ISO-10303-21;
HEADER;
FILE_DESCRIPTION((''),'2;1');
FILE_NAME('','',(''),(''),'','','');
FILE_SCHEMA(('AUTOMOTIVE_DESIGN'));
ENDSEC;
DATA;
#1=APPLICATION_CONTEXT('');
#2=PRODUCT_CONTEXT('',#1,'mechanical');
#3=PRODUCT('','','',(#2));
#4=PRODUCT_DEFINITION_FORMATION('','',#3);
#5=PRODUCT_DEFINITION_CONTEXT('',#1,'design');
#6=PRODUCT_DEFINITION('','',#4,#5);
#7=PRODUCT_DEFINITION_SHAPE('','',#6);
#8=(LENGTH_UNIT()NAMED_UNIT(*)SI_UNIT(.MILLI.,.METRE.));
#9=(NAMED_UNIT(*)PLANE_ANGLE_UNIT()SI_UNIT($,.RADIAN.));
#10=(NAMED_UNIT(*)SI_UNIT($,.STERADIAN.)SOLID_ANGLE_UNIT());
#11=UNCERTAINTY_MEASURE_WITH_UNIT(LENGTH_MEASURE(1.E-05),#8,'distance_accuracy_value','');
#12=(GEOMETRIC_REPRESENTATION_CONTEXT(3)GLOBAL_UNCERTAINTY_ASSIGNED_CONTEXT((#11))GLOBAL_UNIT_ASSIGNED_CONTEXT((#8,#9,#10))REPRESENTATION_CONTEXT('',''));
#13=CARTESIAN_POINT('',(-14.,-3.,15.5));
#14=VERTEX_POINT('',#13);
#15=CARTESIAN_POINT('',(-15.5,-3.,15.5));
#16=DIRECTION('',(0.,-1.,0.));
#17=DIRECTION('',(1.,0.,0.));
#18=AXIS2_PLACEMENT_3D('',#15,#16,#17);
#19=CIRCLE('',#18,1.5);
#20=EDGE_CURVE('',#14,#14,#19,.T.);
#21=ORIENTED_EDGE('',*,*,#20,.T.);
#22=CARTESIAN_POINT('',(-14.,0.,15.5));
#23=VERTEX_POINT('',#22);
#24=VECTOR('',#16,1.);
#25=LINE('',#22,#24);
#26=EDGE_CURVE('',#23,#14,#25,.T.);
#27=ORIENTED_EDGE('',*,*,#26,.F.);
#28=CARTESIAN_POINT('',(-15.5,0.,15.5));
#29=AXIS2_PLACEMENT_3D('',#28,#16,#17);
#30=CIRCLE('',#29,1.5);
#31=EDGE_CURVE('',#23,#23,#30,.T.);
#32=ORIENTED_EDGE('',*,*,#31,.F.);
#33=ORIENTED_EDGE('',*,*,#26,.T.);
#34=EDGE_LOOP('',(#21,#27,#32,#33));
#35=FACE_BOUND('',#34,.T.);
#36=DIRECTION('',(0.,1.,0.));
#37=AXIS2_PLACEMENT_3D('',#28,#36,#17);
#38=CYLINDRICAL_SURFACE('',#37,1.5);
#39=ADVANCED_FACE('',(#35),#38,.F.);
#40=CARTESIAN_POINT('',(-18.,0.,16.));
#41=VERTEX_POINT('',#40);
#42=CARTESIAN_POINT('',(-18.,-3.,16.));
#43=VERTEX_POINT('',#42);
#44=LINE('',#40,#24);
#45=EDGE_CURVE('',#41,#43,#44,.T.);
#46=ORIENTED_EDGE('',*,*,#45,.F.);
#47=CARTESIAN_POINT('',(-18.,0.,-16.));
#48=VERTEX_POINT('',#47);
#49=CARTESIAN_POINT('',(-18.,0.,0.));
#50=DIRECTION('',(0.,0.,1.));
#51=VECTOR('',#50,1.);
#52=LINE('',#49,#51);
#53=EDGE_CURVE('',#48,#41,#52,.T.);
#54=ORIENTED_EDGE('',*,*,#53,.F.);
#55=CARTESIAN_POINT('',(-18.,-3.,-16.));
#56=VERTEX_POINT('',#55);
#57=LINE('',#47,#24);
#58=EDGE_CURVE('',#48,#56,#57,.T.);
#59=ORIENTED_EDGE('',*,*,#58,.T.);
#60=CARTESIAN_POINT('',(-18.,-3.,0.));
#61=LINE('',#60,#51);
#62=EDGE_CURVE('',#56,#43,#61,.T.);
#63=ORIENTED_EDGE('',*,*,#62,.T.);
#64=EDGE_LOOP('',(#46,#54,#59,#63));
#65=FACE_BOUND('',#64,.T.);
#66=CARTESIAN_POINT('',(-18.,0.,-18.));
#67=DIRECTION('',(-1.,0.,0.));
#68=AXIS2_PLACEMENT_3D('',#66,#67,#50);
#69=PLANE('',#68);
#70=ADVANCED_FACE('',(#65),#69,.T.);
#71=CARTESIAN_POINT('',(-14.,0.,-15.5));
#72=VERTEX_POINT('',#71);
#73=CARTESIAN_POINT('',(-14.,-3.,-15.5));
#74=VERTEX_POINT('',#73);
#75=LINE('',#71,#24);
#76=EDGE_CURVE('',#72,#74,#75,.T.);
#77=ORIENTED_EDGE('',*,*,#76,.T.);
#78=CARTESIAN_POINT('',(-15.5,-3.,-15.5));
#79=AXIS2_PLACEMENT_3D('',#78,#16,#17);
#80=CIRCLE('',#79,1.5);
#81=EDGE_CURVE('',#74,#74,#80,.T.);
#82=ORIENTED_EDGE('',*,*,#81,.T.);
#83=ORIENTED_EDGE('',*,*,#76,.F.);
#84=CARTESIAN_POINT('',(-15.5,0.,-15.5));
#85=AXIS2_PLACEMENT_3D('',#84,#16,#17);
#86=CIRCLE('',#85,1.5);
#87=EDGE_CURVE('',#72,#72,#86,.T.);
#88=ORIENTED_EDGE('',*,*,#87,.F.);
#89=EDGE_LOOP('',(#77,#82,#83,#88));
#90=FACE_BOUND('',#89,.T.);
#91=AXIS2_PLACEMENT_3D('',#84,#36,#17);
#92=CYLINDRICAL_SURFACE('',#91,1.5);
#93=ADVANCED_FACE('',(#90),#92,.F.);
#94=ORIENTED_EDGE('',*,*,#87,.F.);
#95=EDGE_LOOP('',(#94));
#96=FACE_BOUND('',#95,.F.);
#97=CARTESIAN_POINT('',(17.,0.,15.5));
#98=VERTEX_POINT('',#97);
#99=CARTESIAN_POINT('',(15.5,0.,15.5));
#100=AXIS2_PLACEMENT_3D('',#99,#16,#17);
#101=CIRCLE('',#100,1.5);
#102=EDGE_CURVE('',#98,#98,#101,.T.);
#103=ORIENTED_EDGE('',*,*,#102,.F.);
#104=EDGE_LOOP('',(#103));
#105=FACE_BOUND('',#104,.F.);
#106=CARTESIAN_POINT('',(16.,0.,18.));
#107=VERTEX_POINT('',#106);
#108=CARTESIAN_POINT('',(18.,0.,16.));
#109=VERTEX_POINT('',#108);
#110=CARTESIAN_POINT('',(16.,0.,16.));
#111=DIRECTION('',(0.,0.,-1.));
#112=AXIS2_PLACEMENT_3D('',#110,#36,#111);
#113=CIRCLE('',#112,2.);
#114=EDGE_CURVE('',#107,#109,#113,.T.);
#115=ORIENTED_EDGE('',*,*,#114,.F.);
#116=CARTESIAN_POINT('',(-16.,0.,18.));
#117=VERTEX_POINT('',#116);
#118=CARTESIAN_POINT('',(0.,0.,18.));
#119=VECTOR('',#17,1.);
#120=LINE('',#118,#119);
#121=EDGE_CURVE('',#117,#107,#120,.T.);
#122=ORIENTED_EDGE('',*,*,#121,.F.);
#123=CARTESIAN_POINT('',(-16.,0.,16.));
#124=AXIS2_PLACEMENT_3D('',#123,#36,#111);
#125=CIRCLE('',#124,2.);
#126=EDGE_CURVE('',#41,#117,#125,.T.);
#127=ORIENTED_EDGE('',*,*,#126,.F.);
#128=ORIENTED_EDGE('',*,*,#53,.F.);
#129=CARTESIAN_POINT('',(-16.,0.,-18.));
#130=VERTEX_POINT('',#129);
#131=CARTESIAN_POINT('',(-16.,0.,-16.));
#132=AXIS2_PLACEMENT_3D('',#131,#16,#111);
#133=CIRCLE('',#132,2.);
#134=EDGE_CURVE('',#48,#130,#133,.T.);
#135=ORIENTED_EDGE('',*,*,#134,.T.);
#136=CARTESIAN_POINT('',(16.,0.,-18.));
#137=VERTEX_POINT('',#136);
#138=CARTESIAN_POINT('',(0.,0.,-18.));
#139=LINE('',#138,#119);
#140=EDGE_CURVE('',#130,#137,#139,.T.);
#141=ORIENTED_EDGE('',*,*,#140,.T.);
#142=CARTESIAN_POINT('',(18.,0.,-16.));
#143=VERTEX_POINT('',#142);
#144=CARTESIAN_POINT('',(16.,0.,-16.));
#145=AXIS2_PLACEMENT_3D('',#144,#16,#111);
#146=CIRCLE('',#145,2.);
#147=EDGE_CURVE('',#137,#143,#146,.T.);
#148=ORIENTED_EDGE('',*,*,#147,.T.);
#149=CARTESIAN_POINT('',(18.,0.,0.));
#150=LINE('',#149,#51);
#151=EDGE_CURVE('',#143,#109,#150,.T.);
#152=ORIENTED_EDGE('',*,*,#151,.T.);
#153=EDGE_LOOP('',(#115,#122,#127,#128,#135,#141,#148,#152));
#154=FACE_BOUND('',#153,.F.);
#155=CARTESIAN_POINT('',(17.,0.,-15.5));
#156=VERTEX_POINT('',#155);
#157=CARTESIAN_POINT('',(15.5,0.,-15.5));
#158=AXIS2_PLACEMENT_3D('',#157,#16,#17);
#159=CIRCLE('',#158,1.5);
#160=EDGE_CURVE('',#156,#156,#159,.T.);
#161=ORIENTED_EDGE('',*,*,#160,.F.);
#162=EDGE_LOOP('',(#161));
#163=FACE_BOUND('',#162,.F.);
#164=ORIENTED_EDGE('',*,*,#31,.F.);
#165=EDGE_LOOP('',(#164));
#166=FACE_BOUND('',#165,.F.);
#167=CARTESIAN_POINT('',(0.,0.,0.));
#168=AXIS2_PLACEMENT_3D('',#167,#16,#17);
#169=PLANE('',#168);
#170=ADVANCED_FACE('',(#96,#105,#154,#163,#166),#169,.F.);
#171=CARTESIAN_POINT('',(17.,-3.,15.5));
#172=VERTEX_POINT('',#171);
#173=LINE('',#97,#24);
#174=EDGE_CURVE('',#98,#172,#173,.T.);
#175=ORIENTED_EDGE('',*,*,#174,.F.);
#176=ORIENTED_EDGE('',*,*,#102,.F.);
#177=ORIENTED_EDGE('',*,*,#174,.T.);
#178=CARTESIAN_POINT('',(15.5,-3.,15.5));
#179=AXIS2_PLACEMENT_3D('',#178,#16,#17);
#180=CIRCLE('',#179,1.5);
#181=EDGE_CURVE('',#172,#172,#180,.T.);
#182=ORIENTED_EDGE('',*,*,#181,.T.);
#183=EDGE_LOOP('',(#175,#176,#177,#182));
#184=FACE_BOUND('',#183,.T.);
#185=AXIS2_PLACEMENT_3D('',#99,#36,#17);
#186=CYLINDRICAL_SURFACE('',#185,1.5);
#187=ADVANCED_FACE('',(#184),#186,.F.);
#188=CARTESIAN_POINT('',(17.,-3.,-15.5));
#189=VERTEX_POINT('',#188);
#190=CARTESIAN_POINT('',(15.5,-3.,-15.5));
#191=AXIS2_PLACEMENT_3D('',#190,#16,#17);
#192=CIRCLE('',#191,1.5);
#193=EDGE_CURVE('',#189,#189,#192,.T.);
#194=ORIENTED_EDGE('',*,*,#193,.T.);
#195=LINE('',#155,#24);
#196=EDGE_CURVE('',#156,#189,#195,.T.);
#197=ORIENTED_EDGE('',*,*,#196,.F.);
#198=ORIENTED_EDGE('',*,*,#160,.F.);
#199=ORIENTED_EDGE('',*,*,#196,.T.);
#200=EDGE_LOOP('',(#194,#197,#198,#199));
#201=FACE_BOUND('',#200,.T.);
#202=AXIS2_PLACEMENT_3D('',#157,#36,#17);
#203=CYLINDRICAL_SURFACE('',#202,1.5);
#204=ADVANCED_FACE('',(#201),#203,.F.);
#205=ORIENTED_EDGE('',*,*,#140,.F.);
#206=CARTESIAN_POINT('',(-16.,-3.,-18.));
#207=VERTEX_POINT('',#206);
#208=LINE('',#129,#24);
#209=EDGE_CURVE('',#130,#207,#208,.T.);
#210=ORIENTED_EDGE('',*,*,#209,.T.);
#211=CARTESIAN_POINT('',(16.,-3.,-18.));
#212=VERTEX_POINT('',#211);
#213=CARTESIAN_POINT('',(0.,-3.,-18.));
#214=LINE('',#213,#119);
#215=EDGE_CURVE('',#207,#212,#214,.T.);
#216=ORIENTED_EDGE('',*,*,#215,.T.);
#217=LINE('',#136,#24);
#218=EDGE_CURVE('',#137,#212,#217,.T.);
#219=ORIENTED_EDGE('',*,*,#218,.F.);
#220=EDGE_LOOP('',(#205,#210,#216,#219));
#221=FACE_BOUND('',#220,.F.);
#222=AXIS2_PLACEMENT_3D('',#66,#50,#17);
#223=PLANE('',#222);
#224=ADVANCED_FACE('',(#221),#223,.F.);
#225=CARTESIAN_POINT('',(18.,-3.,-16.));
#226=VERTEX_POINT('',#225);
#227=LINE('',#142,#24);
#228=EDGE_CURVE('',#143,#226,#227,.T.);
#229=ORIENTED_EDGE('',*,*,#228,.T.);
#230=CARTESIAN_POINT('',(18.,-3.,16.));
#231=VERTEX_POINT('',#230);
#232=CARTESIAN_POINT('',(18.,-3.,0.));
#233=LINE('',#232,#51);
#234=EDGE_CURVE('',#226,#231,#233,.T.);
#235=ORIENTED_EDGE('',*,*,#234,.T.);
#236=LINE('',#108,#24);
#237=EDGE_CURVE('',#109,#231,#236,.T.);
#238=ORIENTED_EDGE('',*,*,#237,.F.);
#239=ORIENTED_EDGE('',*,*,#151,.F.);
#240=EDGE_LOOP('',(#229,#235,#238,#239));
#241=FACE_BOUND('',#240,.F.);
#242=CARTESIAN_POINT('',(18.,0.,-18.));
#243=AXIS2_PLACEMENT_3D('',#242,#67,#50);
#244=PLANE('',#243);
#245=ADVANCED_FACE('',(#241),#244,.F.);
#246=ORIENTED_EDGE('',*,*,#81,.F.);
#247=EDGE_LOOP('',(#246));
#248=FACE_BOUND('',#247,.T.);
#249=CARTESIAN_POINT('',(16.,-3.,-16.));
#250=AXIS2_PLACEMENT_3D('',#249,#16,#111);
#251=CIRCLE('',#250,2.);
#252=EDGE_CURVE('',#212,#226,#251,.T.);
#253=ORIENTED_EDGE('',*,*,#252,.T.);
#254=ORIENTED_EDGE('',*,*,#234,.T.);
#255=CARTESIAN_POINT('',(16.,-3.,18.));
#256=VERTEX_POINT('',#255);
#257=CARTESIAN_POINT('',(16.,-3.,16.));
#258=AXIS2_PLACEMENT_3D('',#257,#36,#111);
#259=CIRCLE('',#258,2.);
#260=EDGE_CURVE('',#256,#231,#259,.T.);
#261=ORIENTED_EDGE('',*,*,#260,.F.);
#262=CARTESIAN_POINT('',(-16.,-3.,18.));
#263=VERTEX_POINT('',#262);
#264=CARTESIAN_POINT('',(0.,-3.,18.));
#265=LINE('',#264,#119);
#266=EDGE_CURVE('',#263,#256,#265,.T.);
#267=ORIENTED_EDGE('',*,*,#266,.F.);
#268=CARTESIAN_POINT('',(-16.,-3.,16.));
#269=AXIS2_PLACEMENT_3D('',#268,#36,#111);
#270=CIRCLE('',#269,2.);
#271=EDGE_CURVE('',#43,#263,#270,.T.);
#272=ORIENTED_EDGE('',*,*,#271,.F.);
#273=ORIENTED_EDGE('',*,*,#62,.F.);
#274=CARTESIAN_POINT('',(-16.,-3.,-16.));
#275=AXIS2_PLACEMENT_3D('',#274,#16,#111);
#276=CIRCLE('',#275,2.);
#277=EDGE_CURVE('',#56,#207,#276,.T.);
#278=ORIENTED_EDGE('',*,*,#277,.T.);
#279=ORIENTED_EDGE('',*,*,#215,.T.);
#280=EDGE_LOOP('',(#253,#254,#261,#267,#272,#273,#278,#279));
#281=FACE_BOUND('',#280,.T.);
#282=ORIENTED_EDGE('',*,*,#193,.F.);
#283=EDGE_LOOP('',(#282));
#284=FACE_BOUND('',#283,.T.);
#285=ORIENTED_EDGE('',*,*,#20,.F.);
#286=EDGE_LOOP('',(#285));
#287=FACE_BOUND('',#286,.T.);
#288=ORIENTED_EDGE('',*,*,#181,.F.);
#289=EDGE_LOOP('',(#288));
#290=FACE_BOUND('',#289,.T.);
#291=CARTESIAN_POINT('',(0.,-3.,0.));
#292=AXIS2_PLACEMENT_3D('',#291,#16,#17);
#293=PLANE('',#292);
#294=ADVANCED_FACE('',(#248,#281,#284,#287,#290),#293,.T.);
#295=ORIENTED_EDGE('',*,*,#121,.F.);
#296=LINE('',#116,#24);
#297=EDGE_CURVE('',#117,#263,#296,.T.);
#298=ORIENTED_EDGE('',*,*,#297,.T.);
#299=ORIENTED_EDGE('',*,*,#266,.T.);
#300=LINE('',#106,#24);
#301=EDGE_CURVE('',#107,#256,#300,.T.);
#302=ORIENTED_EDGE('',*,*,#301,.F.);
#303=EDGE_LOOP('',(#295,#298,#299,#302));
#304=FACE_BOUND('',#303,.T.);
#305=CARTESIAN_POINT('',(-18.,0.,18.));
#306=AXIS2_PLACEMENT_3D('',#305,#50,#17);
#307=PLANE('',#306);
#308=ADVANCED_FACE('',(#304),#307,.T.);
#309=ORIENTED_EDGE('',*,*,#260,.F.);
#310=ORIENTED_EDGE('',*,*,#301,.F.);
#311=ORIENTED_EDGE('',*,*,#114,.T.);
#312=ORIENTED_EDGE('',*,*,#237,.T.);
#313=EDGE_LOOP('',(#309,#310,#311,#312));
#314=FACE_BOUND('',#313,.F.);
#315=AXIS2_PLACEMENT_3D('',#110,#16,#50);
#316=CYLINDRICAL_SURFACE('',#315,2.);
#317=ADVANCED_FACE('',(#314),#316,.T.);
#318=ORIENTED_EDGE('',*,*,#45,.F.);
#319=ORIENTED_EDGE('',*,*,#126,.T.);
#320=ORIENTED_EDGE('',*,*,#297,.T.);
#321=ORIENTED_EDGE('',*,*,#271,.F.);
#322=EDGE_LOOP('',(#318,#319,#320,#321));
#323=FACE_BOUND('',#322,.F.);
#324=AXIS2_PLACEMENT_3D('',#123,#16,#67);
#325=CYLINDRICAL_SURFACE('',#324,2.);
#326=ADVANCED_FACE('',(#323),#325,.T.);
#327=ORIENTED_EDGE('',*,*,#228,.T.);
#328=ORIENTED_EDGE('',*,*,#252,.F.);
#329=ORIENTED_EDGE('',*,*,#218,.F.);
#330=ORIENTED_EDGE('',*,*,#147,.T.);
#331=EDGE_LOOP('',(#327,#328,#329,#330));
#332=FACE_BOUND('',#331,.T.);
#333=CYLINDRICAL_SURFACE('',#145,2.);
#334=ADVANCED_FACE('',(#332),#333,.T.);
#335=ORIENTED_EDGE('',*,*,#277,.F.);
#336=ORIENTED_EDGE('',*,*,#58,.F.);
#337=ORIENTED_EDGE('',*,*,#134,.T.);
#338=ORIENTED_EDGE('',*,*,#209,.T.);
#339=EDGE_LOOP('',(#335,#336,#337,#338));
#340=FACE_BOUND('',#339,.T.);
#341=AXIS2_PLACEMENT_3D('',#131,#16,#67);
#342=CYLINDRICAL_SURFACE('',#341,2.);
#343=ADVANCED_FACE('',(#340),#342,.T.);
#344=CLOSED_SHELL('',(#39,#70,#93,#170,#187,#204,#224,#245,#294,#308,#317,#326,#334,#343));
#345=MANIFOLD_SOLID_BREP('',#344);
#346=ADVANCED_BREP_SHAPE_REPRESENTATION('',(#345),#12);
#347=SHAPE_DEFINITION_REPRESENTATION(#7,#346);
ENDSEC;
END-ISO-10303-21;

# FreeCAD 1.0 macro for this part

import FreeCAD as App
import Part
import Sketcher
Q = App.Units.Quantity


def edges_at(feature, points):
    """Names of the edges that pass closest to the given points."""
    edges = feature.Shape.Edges
    near = lambda p: min(range(len(edges)), key=lambda i: edges[i].distToShape(Part.Vertex(*p))[0])
    return sorted({f"Edge{near(p) + 1}" for p in points})


def add_polygon(sketch, points):
    """Adds a closed chain of lines whose ends are joined by coincident constraints."""
    first, n = sketch.GeometryCount, len(points)
    for a, b in zip(points, points[1:] + points[:1]):
        sketch.addGeometry(Part.LineSegment(App.Vector(*a, 0), App.Vector(*b, 0)), False)
    for i in range(n):
        sketch.addConstraint(Sketcher.Constraint("Coincident", first + i, 2, first + (i + 1) % n, 1))

doc = App.newDocument("Part")
body = doc.addObject("PartDesign::Body", "Body")

sketch1 = body.newObject("Sketcher::SketchObject", "Sketch")
sketch1.AttachmentSupport = (doc.getObject("XZ_Plane"), [""])
sketch1.MapMode = "FlatFace"
add_polygon(sketch1, [(-18, 18), (-18, -18), (18, -18), (18, 18)])
sketch1.addGeometry(Part.Circle(App.Vector(-15.5, -15.5, 0), App.Vector(0, 0, 1), 1.5), False)
sketch1.addGeometry(Part.Circle(App.Vector(15.5, -15.5, 0), App.Vector(0, 0, 1), 1.5), False)
sketch1.addGeometry(Part.Circle(App.Vector(-15.5, 15.5, 0), App.Vector(0, 0, 1), 1.5), False)
sketch1.addGeometry(Part.Circle(App.Vector(15.5, 15.5, 0), App.Vector(0, 0, 1), 1.5), False)
sketch1.addConstraint(Sketcher.Constraint("Vertical", 0))
sketch1.addConstraint(Sketcher.Constraint("Horizontal", 1))
sketch1.addConstraint(Sketcher.Constraint("Vertical", 2))
sketch1.addConstraint(Sketcher.Constraint("Horizontal", 3))
sketch1.addConstraint(Sketcher.Constraint("Equal", 4, 5))
sketch1.addConstraint(Sketcher.Constraint("Equal", 5, 6))
sketch1.addConstraint(Sketcher.Constraint("Equal", 6, 7))
sketch1.addConstraint(Sketcher.Constraint("Symmetric", 5, 3, 6, 3, -1, 1))
sketch1.addConstraint(Sketcher.Constraint("Symmetric", 4, 3, 7, 3, -1, 1))
sketch1.addConstraint(Sketcher.Constraint("Symmetric", 0, 2, 2, 2, -1, 1))
sketch1.addConstraint(Sketcher.Constraint("Symmetric", 4, 3, 5, 3, -2))
sketch1.addConstraint(Sketcher.Constraint("Equal", 3, 0))
sketch1.addConstraint(Sketcher.Constraint("Diameter", 4, Q("3 mm")))
sketch1.addConstraint(Sketcher.Constraint("DistanceX", 1, 1, 1, 2, Q("36 mm")))
sketch1.addConstraint(Sketcher.Constraint("DistanceX", 4, 3, 5, 3, Q("31 mm")))
sketch1.addConstraint(Sketcher.Constraint("DistanceY", 4, 3, 6, 3, Q("31 mm")))
pad1 = body.newObject("PartDesign::Pad", "Pad")
pad1.Profile = sketch1
pad1.Length = 3
doc.recompute()

fillet = body.newObject("PartDesign::Fillet", "Fillet")
fillet.Base = (pad1, edges_at(pad1, [
    (-18, -1.5, 18),
    (-18, -1.5, -18),
    (18, -1.5, -18),
    (18, -1.5, 18),
]))
fillet.Radius = 2

doc.recompute()
